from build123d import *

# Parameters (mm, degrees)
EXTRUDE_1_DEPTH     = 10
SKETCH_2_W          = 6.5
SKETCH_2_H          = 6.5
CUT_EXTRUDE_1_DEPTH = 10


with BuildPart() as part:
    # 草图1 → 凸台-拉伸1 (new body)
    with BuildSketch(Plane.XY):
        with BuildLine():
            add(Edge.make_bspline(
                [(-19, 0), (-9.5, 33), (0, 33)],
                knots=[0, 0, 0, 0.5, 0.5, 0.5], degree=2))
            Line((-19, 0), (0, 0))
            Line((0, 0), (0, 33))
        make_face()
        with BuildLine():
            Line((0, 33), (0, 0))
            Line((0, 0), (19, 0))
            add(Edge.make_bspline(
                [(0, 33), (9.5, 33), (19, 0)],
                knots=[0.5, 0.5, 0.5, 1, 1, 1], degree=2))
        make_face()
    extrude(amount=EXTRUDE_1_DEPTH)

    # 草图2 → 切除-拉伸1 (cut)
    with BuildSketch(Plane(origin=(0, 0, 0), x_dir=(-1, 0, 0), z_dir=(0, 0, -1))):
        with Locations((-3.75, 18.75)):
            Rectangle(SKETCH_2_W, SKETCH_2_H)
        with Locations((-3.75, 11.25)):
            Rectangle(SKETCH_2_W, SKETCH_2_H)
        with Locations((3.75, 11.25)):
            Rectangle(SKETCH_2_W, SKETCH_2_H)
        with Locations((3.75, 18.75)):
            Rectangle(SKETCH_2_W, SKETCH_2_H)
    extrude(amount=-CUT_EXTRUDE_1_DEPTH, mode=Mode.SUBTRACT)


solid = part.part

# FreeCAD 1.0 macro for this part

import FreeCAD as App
import Part
import Sketcher
from FreeCAD import Vector


def add_polygon(sketch, points):
    """Adds a closed chain of lines whose ends are joined by coincident constraints."""
    first, n = sketch.GeometryCount, len(points)
    for a, b in zip(points, points[1:] + points[:1]):
        sketch.addGeometry(Part.LineSegment(App.Vector(*a, 0), App.Vector(*b, 0)), False)
    for i in range(n):
        sketch.addConstraint(Sketcher.Constraint("Coincident", first + i, 2, first + (i + 1) % n, 1))

doc = App.newDocument("Part")
body = doc.addObject("PartDesign::Body", "Body")

# Sketch on XY plane
sketch1 = body.newObject("Sketcher::SketchObject", "Sketch")
sketch1.AttachmentSupport = (doc.getObject("XY_Plane"), [""])
sketch1.MapMode = "FlatFace"
sketch1.addGeometry(Part.BSplineCurve([Vector(19, 0, 0), Vector(0, 66, 0), Vector(-19, 0, 0)], [3, 3], [0.5, 1.5], False, 2, [1, 1, 1], False), False)
sketch1.addGeometry(Part.LineSegment(Vector(-19, 0, 0), Vector(19, 0, 0)), False)
sketch1.addConstraint(Sketcher.Constraint("Block", 0))
sketch1.addConstraint(Sketcher.Constraint("Coincident", 0, 1, 1, 2))
sketch1.addConstraint(Sketcher.Constraint("Coincident", 1, 1, 0, 2))
pad1 = body.newObject("PartDesign::Pad", "Pad")
pad1.Profile = sketch1
pad1.Length = 10

# Sketch on XY plane
sketch2 = body.newObject("Sketcher::SketchObject", "Sketch001")
sketch2.AttachmentSupport = (doc.getObject("XY_Plane"), [""])
sketch2.MapMode = "FlatFace"
add_polygon(sketch2, [(7, 22), (7, 15.5), (0.5, 15.5), (0.5, 22)])  # lines 0-3
add_polygon(sketch2, [(7, 14.5), (7, 8), (0.5, 8), (0.5, 14.5)])  # lines 4-7
add_polygon(sketch2, [(-0.5, 14.5), (-0.5, 8), (-7, 8), (-7, 14.5)])  # lines 8-11
add_polygon(sketch2, [(-0.5, 22), (-0.5, 15.5), (-7, 15.5), (-7, 22)])  # lines 12-15
sketch2.addConstraint(Sketcher.Constraint("Vertical", 0))
sketch2.addConstraint(Sketcher.Constraint("Horizontal", 1))
sketch2.addConstraint(Sketcher.Constraint("Vertical", 2))
sketch2.addConstraint(Sketcher.Constraint("Horizontal", 3))
sketch2.addConstraint(Sketcher.Constraint("Vertical", 4))
sketch2.addConstraint(Sketcher.Constraint("Horizontal", 5))
sketch2.addConstraint(Sketcher.Constraint("Vertical", 6))
sketch2.addConstraint(Sketcher.Constraint("Horizontal", 7))
sketch2.addConstraint(Sketcher.Constraint("Vertical", 8))
sketch2.addConstraint(Sketcher.Constraint("Horizontal", 9))
sketch2.addConstraint(Sketcher.Constraint("Vertical", 10))
sketch2.addConstraint(Sketcher.Constraint("Horizontal", 11))
sketch2.addConstraint(Sketcher.Constraint("Vertical", 12))
sketch2.addConstraint(Sketcher.Constraint("Horizontal", 13))
sketch2.addConstraint(Sketcher.Constraint("Vertical", 14))
sketch2.addConstraint(Sketcher.Constraint("Horizontal", 15))
sketch2.addConstraint(Sketcher.Constraint("Symmetric", 5, 2, 8, 2, -2))
sketch2.addConstraint(Sketcher.Constraint("Symmetric", 7, 2, 10, 2, -2))
sketch2.addConstraint(Sketcher.Constraint("Symmetric", 1, 2, 12, 2, -2))
sketch2.addConstraint(Sketcher.Constraint("Symmetric", 3, 2, 14, 2, -2))
sketch2.addConstraint(Sketcher.Constraint("Vertical", 3, 2, 4, 2))
sketch2.addConstraint(Sketcher.Constraint("Vertical", 2, 2, 5, 2))
sketch2.addConstraint(Sketcher.Constraint("Equal", 15, 0))
sketch2.addConstraint(Sketcher.Constraint("Equal", 2, 4))
sketch2.addConstraint(Sketcher.Constraint("DistanceX", 1, 2, 1, 1, 6.5))
sketch2.addConstraint(Sketcher.Constraint("DistanceX", -1, 1, 0, 2, 7.0))
sketch2.addConstraint(Sketcher.Constraint("DistanceY", -1, 1, 2, 2, 22.0))
sketch2.addConstraint(Sketcher.Constraint("DistanceY", -1, 1, 4, 2, 8.0))
pocket1 = body.newObject("PartDesign::Pocket", "Pocket")
pocket1.Profile = sketch2
pocket1.Length = 10
pocket1.Reversed = True

doc.recompute()
